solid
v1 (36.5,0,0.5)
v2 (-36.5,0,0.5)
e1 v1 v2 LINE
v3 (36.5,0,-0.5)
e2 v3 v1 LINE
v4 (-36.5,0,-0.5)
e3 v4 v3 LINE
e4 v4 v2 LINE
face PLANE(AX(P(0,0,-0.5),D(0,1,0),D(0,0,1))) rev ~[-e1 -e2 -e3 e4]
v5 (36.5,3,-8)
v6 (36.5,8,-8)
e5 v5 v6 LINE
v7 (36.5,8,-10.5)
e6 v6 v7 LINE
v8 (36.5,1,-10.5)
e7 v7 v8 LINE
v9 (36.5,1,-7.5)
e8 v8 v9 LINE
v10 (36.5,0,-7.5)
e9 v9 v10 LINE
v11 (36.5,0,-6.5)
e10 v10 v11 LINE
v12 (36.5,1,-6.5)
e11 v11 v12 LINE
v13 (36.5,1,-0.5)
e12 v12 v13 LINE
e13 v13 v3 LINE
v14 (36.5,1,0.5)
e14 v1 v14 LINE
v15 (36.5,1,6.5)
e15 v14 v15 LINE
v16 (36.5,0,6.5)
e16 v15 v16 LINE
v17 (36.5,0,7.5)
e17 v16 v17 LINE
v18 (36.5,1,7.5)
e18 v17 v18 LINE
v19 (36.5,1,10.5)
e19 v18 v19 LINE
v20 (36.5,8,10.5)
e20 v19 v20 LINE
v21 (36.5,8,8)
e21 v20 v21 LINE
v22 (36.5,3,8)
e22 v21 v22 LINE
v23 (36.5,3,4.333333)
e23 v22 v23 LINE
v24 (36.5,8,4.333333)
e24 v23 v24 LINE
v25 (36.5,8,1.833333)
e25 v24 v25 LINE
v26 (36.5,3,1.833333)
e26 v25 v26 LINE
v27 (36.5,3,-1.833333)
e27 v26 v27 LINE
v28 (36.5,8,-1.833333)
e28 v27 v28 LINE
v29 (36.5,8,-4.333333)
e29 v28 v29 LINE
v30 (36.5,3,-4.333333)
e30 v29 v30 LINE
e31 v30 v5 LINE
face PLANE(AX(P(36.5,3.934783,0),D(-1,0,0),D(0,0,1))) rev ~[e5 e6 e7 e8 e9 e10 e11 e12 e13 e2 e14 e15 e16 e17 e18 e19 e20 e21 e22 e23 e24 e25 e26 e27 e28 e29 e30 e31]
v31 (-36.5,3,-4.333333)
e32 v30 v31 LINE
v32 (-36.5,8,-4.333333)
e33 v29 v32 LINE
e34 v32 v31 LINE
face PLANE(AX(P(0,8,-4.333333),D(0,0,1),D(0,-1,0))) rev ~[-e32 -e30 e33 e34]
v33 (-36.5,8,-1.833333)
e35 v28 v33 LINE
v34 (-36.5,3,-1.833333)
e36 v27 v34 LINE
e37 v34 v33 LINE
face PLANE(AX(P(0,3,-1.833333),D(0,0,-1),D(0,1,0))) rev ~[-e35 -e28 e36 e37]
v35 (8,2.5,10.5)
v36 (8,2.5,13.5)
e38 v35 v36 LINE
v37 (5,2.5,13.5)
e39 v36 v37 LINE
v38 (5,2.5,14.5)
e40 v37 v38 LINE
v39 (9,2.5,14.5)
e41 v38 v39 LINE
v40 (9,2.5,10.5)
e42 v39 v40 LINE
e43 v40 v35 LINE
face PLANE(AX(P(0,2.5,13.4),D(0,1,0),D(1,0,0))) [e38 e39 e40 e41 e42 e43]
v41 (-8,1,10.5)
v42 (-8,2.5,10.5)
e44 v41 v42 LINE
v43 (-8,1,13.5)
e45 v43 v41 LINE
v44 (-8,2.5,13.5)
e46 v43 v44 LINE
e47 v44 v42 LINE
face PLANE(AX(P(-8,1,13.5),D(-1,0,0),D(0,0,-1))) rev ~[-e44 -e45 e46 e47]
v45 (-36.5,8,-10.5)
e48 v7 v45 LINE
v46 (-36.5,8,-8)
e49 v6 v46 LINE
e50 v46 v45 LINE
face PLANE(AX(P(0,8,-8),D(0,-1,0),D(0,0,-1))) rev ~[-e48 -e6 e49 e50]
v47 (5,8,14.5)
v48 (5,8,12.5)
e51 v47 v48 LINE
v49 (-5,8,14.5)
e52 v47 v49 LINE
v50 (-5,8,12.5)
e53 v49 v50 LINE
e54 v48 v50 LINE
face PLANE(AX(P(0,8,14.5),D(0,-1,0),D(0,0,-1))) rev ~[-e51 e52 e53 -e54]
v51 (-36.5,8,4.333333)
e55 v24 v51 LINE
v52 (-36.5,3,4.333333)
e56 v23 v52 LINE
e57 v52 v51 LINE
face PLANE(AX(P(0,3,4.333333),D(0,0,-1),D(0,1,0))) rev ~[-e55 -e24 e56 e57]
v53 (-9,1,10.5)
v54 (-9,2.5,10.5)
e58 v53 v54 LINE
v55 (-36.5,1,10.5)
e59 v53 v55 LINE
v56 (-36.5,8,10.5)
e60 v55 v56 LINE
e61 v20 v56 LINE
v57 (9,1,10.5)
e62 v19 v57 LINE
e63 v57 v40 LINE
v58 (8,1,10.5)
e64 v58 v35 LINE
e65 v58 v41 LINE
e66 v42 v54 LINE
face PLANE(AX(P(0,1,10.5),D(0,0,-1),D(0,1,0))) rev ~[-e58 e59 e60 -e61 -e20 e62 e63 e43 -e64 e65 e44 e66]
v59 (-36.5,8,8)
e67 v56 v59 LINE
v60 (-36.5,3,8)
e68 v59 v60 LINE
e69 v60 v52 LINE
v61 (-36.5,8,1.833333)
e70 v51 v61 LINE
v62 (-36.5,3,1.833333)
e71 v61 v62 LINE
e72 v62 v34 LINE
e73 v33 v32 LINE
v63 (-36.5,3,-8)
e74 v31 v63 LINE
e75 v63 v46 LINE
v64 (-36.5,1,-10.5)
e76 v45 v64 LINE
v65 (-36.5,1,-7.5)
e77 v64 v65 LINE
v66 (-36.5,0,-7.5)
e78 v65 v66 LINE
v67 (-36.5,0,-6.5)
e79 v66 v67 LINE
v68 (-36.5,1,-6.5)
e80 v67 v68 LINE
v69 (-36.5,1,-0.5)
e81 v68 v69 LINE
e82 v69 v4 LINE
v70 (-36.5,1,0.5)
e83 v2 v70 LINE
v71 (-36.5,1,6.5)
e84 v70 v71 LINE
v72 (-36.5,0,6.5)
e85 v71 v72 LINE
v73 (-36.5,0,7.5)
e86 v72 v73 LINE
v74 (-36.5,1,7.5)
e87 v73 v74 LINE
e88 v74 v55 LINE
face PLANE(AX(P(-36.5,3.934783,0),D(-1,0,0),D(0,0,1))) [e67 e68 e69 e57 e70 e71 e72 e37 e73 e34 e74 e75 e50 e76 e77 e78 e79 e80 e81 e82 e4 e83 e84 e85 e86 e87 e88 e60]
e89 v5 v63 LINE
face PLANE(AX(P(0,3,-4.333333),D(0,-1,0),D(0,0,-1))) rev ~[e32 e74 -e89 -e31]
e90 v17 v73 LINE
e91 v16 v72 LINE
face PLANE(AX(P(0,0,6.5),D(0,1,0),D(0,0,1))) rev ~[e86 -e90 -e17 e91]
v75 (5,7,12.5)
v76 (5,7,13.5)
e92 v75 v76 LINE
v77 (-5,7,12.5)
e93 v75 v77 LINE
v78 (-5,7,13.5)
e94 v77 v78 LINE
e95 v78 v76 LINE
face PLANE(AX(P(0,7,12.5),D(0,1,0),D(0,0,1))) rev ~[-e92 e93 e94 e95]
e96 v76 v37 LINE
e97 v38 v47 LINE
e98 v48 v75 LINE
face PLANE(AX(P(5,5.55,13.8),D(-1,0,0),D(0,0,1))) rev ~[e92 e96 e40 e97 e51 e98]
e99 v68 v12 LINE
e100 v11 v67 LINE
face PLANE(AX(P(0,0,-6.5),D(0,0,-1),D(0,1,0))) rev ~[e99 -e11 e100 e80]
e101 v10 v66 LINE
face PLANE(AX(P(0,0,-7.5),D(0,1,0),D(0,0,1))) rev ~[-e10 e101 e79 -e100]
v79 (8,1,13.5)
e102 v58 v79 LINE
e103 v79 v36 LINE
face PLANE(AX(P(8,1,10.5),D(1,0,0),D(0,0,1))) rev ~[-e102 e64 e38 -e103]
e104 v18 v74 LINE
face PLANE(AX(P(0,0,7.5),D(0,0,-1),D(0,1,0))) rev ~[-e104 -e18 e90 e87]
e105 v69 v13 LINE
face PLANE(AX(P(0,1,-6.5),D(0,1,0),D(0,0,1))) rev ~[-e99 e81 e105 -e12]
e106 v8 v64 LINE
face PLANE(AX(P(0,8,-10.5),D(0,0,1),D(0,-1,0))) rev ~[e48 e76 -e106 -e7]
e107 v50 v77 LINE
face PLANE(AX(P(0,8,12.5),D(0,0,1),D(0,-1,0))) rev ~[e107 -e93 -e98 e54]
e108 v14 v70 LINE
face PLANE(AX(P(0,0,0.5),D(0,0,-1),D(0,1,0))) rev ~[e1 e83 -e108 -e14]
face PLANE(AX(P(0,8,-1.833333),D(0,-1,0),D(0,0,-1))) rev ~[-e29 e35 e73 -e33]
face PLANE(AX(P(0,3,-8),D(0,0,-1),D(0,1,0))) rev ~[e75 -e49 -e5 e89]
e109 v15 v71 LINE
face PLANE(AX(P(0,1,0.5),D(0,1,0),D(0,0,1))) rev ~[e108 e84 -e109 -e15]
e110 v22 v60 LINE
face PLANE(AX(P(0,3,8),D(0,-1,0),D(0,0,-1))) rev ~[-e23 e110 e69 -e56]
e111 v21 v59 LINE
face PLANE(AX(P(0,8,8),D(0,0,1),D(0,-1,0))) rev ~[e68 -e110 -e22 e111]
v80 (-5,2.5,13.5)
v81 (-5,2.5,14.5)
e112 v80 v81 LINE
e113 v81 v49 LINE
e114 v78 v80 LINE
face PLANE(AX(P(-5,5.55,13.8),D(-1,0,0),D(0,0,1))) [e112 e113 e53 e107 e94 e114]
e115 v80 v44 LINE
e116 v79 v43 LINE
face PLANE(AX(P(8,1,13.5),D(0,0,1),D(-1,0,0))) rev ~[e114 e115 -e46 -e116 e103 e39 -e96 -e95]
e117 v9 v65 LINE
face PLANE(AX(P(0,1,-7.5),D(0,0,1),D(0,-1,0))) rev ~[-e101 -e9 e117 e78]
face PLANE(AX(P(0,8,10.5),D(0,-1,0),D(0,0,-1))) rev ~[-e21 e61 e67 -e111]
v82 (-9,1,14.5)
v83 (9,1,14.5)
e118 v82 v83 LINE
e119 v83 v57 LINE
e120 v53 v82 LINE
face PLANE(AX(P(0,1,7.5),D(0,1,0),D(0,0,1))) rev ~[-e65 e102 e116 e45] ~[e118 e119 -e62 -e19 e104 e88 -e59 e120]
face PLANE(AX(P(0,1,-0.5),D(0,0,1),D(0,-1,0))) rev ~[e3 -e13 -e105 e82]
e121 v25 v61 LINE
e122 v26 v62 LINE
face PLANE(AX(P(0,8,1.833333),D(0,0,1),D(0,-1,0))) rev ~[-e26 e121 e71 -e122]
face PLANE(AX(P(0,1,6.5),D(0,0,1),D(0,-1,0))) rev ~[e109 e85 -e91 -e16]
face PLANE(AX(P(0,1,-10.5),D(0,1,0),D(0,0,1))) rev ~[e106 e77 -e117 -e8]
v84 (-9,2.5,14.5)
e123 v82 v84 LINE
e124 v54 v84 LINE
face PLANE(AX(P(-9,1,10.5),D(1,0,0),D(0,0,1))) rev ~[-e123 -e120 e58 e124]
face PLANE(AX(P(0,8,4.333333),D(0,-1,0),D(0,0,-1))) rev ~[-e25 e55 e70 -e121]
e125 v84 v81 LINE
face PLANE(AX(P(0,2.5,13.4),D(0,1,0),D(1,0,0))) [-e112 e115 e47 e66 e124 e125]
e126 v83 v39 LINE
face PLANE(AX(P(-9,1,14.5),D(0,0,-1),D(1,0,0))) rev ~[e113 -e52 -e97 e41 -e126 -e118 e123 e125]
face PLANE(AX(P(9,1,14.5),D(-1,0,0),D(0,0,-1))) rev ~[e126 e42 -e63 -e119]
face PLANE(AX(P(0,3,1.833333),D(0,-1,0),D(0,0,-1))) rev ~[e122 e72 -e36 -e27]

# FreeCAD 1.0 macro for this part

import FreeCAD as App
import Part
import Sketcher
from FreeCAD import Vector


def add_polygon(sketch, points):
    """Adds a closed chain of lines whose ends are joined by coincident constraints."""
    first, n = sketch.GeometryCount, len(points)
    for a, b in zip(points, points[1:] + points[:1]):
        sketch.addGeometry(Part.LineSegment(App.Vector(*a, 0), App.Vector(*b, 0)), False)
    for i in range(n):
        sketch.addConstraint(Sketcher.Constraint("Coincident", first + i, 2, first + (i + 1) % n, 1))

doc = App.newDocument("Part")
body = doc.addObject("PartDesign::Body", "Body")

# Sketch on YZ plane
sketch1 = body.newObject("Sketcher::SketchObject", "Sketch")
sketch1.AttachmentSupport = (doc.getObject("YZ_Plane"), [""])
sketch1.MapMode = "FlatFace"
add_polygon(sketch1, [(0, 0.5), (0, -0.5), (1, -0.5), (1, -6.5), (0, -6.5), (0, -7.5), (1, -7.5), (1, -10.5), (8, -10.5), (8, -8), (3, -8), (3, -4.333333), (8, -4.333333), (8, -1.833333), (3, -1.833333), (3, 1.833333), (8, 1.833333), (8, 4.333333), (3, 4.333333), (3, 8), (8, 8), (8, 10.5), (1, 10.5), (1, 7.5), (0, 7.5), (0, 6.5), (1, 6.5), (1, 0.5)])  # lines 0-27
sketch1.addConstraint([
    Sketcher.Constraint("Vertical", 0),
    Sketcher.Constraint("Horizontal", 1),
    Sketcher.Constraint("Vertical", 2),
    Sketcher.Constraint("Horizontal", 3),
    Sketcher.Constraint("Vertical", 4),
    Sketcher.Constraint("Horizontal", 5),
    Sketcher.Constraint("Vertical", 6),
    Sketcher.Constraint("Horizontal", 7),
    Sketcher.Constraint("Vertical", 8),
    Sketcher.Constraint("Horizontal", 9),
    Sketcher.Constraint("Vertical", 10),
    Sketcher.Constraint("Horizontal", 11),
    Sketcher.Constraint("Vertical", 12),
    Sketcher.Constraint("Horizontal", 13),
    Sketcher.Constraint("Vertical", 14),
    Sketcher.Constraint("Horizontal", 15),
    Sketcher.Constraint("Vertical", 16),
    Sketcher.Constraint("Horizontal", 17),
    Sketcher.Constraint("Vertical", 18),
    Sketcher.Constraint("Horizontal", 19),
    Sketcher.Constraint("Vertical", 20),
    Sketcher.Constraint("Horizontal", 21),
    Sketcher.Constraint("Vertical", 22),
    Sketcher.Constraint("Horizontal", 23),
    Sketcher.Constraint("Vertical", 24),
    Sketcher.Constraint("Horizontal", 25),
    Sketcher.Constraint("Vertical", 26),
    Sketcher.Constraint("Horizontal", 27),
    Sketcher.Constraint("Symmetric", 4, 2, 23, 2, -1, 1),
    Sketcher.Constraint("Symmetric", 0, 2, 27, 2, -1, 1),
    Sketcher.Constraint("Symmetric", 12, 2, 15, 2, -1),
    Sketcher.Constraint("Symmetric", 10, 2, 17, 2, -1),
    Sketcher.Constraint("Symmetric", 8, 2, 19, 2, -1),
    Sketcher.Constraint("Symmetric", 6, 2, 21, 2, -1),
    Sketcher.Constraint("Symmetric", 3, 2, 24, 2, -1),
    Sketcher.Constraint("Vertical", 2, 2, 5, 2),
    Sketcher.Constraint("Vertical", 8, 2, 11, 2),
    Sketcher.Constraint("Vertical", 10, 2, 13, 2),
    Sketcher.Constraint("Vertical", 22, 2, 25, 2),
    Sketcher.Constraint("Equal", 27, 0),
    Sketcher.Constraint("Equal", 0, 4),
    Sketcher.Constraint("Equal", 8, 12),
    Sketcher.Constraint("Equal", 10, 14),
    Sketcher.Constraint("DistanceX", 1, 1, 1, 2, 1.0),
    Sketcher.Constraint("DistanceX", 7, 1, 7, 2, 7.0),
    Sketcher.Constraint("DistanceX", 9, 2, 9, 1, 5.0),
    Sketcher.Constraint("DistanceY", 2, 2, 2, 1, 6.0),
    Sketcher.Constraint("DistanceY", 6, 2, 6, 1, 3.0),
    Sketcher.Constraint("DistanceY", 8, 1, 8, 2, 2.5),
])
pad1 = body.newObject("PartDesign::Pad", "Pad")
pad1.Profile = sketch1
pad1.Length = 73
pad1.Midplane = True

# Sketch on XZ plane
sketch2 = body.newObject("Sketcher::SketchObject", "Sketch001")
sketch2.AttachmentSupport = (doc.getObject("XZ_Plane"), [""])
sketch2.MapMode = "FlatFace"
sketch2.AttachmentOffset = App.Placement(Vector(0, 0, -1), App.Rotation())
add_polygon(sketch2, [(-9, 10.5), (-9, 14.5), (9, 14.5), (9, 10.5), (8, 10.5), (8, 13.5), (-8, 13.5), (-8, 10.5)])  # lines 0-7
sketch2.addConstraint([
    Sketcher.Constraint("Vertical", 0),
    Sketcher.Constraint("Horizontal", 1),
    Sketcher.Constraint("Vertical", 2),
    Sketcher.Constraint("Horizontal", 3),
    Sketcher.Constraint("Vertical", 4),
    Sketcher.Constraint("Horizontal", 5),
    Sketcher.Constraint("Vertical", 6),
    Sketcher.Constraint("Horizontal", 7),
    Sketcher.Constraint("Symmetric", 3, 2, 6, 2, -2),
    Sketcher.Constraint("Equal", 3, 7),
    Sketcher.Constraint("DistanceX", 1, 1, 1, 2, 18.0),
    Sketcher.Constraint("DistanceX", 3, 2, 3, 1, 1.0),
    Sketcher.Constraint("DistanceY", 0, 1, 0, 2, 4.0),
    Sketcher.Constraint("DistanceY", 4, 1, 4, 2, 3.0),
    Sketcher.Constraint("DistanceY", -1, 1, 0, 2, 14.5),
])
pad2 = body.newObject("PartDesign::Pad", "Pad001")
pad2.Profile = sketch2
pad2.Length = 1.5
pad2.Reversed = True

# Sketch on YZ plane
sketch3 = body.newObject("Sketcher::SketchObject", "Sketch002")
sketch3.AttachmentSupport = (doc.getObject("YZ_Plane"), [""])
sketch3.MapMode = "FlatFace"
add_polygon(sketch3, [(8, 14.5), (2.5, 14.5), (2.5, 13.5), (7, 13.5), (7, 12.5), (8, 12.5)])  # lines 0-5
sketch3.addConstraint([
    Sketcher.Constraint("Horizontal", 0),
    Sketcher.Constraint("Vertical", 1),
    Sketcher.Constraint("Horizontal", 2),
    Sketcher.Constraint("Vertical", 3),
    Sketcher.Constraint("Horizontal", 4),
    Sketcher.Constraint("Vertical", 5),
    Sketcher.Constraint("Equal", 4, 1),
    Sketcher.Constraint("Equal", 1, 3),
    Sketcher.Constraint("DistanceX", 4, 1, 4, 2, 1.0),
    Sketcher.Constraint("DistanceX", 0, 2, 0, 1, 5.5),
    Sketcher.Constraint("DistanceX", -1, 1, 2, 2, 7.0),
    Sketcher.Constraint("DistanceY", -1, 1, 0, 2, 14.5),
])
pad3 = body.newObject("PartDesign::Pad", "Pad002")
pad3.Profile = sketch3
pad3.Length = 10
pad3.Midplane = True

doc.recompute()
